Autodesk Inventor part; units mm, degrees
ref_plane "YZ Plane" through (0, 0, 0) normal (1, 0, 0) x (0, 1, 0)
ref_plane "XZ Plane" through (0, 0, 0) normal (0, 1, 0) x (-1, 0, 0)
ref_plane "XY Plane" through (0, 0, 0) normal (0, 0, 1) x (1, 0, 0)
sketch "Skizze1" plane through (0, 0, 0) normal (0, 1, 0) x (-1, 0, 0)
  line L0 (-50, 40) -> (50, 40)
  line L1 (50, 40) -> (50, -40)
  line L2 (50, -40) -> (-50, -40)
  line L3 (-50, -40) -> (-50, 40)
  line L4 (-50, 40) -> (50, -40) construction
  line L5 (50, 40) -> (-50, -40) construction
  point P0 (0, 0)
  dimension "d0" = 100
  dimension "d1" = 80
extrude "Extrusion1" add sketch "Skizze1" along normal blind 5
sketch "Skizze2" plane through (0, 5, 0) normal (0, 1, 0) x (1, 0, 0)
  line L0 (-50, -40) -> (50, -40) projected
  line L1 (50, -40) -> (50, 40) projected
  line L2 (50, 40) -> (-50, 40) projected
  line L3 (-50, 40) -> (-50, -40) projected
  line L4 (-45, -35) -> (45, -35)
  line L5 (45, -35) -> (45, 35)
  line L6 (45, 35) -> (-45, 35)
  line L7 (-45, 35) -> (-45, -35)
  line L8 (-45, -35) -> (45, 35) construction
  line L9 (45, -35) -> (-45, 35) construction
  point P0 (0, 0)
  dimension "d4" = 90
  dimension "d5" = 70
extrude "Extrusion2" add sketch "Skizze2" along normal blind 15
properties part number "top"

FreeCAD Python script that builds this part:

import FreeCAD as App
import Part
import Sketcher

V = App.Vector
Q = App.Units.Quantity


def add_polygon(sketch, points):
    """Adds a closed chain of lines whose ends are joined by coincident constraints."""
    first, n = sketch.GeometryCount, len(points)
    for a, b in zip(points, points[1:] + points[:1]):
        sketch.addGeometry(Part.LineSegment(App.Vector(*a, 0), App.Vector(*b, 0)), False)
    for i in range(n):
        sketch.addConstraint(Sketcher.Constraint("Coincident", first + i, 2, first + (i + 1) % n, 1))

doc = App.newDocument("Part")
body = doc.addObject("PartDesign::Body", "Body")

sketch1 = doc.addObject("Sketcher::SketchObject", "Sketch")
body.addObject(sketch1)
sketch1.AttachmentSupport = (doc.XZ_Plane, [""])
sketch1.MapMode = "FlatFace"
add_polygon(sketch1, [(-50, 40), (50, 40), (50, -40), (-50, -40)])
sketch1.addConstraint(Sketcher.Constraint("Horizontal", 0))
sketch1.addConstraint(Sketcher.Constraint("Vertical", 1))
sketch1.addConstraint(Sketcher.Constraint("Horizontal", 2))
sketch1.addConstraint(Sketcher.Constraint("Vertical", 3))
sketch1.addConstraint(Sketcher.Constraint("Symmetric", 0, 2, 2, 2, -1, 1))
sketch1.addConstraint(Sketcher.Constraint("DistanceX", 0, 1, 0, 2, Q("100 mm")))
sketch1.addConstraint(Sketcher.Constraint("DistanceY", 1, 2, 1, 1, Q("80 mm")))
pad1 = doc.addObject("PartDesign::Pad", "Pad")
body.addObject(pad1)
pad1.Profile = sketch1
pad1.Length = 5
pad1.Reversed = True

sketch2 = doc.addObject("Sketcher::SketchObject", "Sketch001")
body.addObject(sketch2)
sketch2.AttachmentSupport = (doc.XZ_Plane, [""])
sketch2.MapMode = "FlatFace"
sketch2.AttachmentOffset = App.Placement(V(0, 0, -5), App.Rotation())
add_polygon(sketch2, [(-50, -40), (-50, 40), (50, 40), (50, -40)])
add_polygon(sketch2, [(45, 35), (-45, 35), (-45, -35), (45, -35)])
sketch2.addConstraint(Sketcher.Constraint("Vertical", 0))
sketch2.addConstraint(Sketcher.Constraint("Horizontal", 1))
sketch2.addConstraint(Sketcher.Constraint("Vertical", 2))
sketch2.addConstraint(Sketcher.Constraint("Horizontal", 3))
sketch2.addConstraint(Sketcher.Constraint("Horizontal", 4))
sketch2.addConstraint(Sketcher.Constraint("Vertical", 5))
sketch2.addConstraint(Sketcher.Constraint("Horizontal", 6))
sketch2.addConstraint(Sketcher.Constraint("Vertical", 7))
sketch2.addConstraint(Sketcher.Constraint("Symmetric", 0, 2, 2, 2, -1, 1))
sketch2.addConstraint(Sketcher.Constraint("Symmetric", 4, 2, 6, 2, -1, 1))
sketch2.addConstraint(Sketcher.Constraint("DistanceX", 4, 2, 4, 1, Q("90 mm")))
sketch2.addConstraint(Sketcher.Constraint("DistanceY", 5, 2, 5, 1, Q("70 mm")))
sketch2.addConstraint(Sketcher.Constraint("DistanceX", 1, 1, 1, 2, Q("100 mm")))
sketch2.addConstraint(Sketcher.Constraint("DistanceY", 0, 1, 0, 2, Q("80 mm")))
pad2 = doc.addObject("PartDesign::Pad", "Pad001")
body.addObject(pad2)
pad2.Profile = sketch2
pad2.Length = 15
pad2.Reversed = True

doc.recompute()
